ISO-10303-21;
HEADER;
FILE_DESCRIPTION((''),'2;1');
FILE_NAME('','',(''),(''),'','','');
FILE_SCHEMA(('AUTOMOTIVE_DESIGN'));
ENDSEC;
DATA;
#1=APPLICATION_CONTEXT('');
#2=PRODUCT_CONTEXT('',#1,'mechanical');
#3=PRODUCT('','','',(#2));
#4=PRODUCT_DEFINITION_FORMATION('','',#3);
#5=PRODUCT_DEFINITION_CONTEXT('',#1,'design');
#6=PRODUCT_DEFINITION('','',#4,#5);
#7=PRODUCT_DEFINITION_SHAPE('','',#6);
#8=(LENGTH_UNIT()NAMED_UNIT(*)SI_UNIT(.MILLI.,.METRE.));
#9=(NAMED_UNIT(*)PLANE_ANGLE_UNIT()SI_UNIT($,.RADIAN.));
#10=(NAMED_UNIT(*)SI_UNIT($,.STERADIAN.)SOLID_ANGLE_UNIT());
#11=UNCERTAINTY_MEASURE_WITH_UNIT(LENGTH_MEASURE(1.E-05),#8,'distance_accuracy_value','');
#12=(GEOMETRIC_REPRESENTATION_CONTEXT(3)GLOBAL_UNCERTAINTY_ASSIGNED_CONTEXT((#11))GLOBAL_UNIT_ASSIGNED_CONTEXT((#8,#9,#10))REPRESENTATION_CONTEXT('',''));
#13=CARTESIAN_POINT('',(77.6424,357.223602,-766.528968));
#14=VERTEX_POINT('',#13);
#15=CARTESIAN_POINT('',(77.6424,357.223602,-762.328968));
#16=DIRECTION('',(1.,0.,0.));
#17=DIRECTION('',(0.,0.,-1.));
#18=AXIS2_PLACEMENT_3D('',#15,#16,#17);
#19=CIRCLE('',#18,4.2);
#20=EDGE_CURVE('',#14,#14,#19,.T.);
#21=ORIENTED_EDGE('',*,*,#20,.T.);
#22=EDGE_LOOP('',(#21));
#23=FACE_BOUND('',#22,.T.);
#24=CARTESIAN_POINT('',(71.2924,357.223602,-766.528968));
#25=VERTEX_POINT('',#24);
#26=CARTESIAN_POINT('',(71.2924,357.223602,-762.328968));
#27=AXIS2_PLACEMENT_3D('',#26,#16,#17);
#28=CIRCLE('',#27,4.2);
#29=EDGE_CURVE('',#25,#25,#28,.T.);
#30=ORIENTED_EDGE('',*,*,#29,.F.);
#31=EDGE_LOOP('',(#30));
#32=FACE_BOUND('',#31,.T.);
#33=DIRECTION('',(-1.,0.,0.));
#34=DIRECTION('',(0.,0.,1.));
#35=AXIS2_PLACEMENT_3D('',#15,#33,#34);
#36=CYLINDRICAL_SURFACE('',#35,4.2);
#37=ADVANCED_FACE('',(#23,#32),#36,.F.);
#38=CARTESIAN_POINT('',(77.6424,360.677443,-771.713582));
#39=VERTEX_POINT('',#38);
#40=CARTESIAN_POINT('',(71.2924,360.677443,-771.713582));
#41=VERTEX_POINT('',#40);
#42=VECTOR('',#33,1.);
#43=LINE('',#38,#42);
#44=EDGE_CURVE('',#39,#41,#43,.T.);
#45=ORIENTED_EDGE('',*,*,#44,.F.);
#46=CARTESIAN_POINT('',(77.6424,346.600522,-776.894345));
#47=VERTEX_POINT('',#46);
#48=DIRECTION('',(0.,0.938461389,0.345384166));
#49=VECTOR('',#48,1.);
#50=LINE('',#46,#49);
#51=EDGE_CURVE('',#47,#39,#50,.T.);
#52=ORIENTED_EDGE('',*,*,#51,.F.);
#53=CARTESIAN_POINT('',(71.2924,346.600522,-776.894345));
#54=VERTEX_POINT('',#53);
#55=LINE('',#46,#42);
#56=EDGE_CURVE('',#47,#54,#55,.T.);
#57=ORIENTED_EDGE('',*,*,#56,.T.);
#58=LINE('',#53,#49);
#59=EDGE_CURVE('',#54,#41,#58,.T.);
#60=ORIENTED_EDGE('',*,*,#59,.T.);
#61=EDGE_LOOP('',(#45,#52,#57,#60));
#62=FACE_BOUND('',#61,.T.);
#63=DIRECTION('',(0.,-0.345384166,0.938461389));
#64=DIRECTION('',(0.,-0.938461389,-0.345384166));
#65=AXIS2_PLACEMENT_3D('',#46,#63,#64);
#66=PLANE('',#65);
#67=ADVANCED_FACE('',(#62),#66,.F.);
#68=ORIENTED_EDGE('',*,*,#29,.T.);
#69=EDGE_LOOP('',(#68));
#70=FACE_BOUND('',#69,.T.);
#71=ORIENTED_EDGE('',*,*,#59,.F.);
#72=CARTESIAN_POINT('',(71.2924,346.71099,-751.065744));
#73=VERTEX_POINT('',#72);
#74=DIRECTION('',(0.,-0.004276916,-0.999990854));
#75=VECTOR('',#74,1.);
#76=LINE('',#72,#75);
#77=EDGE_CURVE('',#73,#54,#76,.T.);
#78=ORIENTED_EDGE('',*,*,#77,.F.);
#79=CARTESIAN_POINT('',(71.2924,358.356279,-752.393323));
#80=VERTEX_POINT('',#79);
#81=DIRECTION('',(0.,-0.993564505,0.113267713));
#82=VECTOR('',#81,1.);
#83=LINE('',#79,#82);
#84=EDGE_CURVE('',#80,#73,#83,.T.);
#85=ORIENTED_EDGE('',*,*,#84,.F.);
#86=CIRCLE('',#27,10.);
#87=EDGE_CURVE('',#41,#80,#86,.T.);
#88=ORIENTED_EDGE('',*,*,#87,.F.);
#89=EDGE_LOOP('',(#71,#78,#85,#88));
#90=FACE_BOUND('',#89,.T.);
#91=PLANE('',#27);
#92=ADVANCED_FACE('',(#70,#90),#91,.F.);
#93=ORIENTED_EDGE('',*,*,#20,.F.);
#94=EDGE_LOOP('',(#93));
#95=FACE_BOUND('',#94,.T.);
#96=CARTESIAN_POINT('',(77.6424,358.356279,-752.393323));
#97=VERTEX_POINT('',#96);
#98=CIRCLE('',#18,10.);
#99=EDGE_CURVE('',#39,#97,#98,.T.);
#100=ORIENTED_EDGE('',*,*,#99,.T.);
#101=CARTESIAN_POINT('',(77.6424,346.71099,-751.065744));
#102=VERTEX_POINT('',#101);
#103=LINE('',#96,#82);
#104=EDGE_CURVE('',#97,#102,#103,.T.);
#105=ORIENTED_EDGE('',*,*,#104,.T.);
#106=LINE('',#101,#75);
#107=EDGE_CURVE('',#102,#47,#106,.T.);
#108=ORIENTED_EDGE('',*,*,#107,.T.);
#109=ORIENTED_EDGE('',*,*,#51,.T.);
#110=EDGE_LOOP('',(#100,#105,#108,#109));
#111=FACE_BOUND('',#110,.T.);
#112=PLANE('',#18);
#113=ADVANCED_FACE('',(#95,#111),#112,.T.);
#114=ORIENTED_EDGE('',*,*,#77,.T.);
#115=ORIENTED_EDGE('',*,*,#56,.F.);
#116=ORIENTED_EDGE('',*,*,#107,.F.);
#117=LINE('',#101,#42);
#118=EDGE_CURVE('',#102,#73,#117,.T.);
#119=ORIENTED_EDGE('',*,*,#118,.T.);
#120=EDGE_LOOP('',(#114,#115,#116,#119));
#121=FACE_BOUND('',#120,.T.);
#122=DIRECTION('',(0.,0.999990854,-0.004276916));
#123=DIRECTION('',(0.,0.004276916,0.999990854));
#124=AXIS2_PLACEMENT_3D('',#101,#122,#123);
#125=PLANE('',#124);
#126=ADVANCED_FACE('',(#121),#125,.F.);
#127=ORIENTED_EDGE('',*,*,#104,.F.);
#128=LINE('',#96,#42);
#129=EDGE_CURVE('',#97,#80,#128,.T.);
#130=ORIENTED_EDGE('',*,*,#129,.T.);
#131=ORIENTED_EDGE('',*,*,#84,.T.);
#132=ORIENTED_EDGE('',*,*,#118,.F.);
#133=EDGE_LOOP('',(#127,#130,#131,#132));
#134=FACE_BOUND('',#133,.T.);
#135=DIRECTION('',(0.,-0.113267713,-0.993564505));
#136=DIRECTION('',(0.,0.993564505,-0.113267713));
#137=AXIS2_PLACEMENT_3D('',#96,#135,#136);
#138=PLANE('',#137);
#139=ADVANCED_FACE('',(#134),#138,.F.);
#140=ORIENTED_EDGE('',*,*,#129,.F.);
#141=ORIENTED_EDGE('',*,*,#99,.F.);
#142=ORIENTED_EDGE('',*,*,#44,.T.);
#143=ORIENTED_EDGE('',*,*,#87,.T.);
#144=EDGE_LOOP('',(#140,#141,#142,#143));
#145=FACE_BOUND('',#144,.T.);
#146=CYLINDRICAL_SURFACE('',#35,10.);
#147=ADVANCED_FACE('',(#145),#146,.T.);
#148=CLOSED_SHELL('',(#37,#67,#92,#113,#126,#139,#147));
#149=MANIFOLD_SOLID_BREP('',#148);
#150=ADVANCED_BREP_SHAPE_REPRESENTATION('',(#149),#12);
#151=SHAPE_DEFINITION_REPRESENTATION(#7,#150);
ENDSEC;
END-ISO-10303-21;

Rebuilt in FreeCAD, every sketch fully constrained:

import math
import FreeCAD as App
import Part
import Sketcher

V = App.Vector
Q = App.Units.Quantity

doc = App.newDocument("Part")
params = doc.addObject("Spreadsheet::Sheet", "Params")
for row, (alias, value) in enumerate([
    ("sketch1_radius", "10 mm"),
    ("sketch1_diameter", "8.4 mm"),
    ("sketch1_length", "15 mm"),
    ("pad1_length", "6.35 mm"),
], start=1):
    params.set(f"A{row}", alias)
    params.set(f"B{row}", "=" + value)
    params.setAlias(f"B{row}", alias)

body = doc.addObject("PartDesign::Body", "Body")

# Sketch on YZ plane
sketch1 = body.newObject("Sketcher::SketchObject", "Sketch")
sketch1.AttachmentSupport = (doc.getObject("YZ_Plane"), [""])
sketch1.MapMode = "FlatFace"
sketch1.AttachmentOffset = App.Placement(V(0, 0, 71.2924), App.Rotation())
sketch1.addGeometry([
    Part.LineSegment(V(358.4, -752.4, 0), V(346.7, -751.1, 0)),  # 0
    Part.LineSegment(V(346.7, -751.1, 0), V(346.6, -776.9, 0)),  # 1
    Part.LineSegment(V(346.6, -776.9, 0), V(360.7, -771.7, 0)),  # 2
    Part.ArcOfCircle(Part.Circle(V(357.2, -762.3, 0), V(0, 0, 1), 10), math.radians(-70), math.radians(83)),  # 3
    Part.Circle(V(357.2, -762.3, 0), V(0, 0, 1), 4.2),  # 4
], False)
sketch1.addConstraint([
    Sketcher.Constraint("Coincident", 0, 2, 1, 1),
    Sketcher.Constraint("Coincident", 1, 2, 2, 1),
    Sketcher.Constraint("Tangent", 2, 2, 3, 1),
    Sketcher.Constraint("Tangent", 3, 2, 0, 1),
    Sketcher.Constraint("Coincident", 4, 3, 3, 3),
    Sketcher.Constraint("Radius", 3, Q("10 mm")),
    Sketcher.Constraint("Diameter", 4, Q("8.4 mm")),
    Sketcher.Constraint("Distance", 2, Q("15 mm")),
    Sketcher.Constraint("DistanceX", -1, 1, 3, 3, Q("357.223602 mm")),
    Sketcher.Constraint("DistanceY", 1, 2, 0, 2, Q("25.8286 mm")),
    Sketcher.Constraint("DistanceY", 3, 3, -1, 1, Q("762.328968 mm")),
    Sketcher.Constraint("DistanceX", -1, 1, 0, 2, Q("346.71099 mm")),
    Sketcher.Constraint("DistanceX", -1, 1, 3, 2, Q("358.356279 mm")),
])
sketch1.setExpression("Constraints[5]", "Params.sketch1_radius")
sketch1.setExpression("Constraints[6]", "Params.sketch1_diameter")
sketch1.setExpression("Constraints[7]", "Params.sketch1_length")
pad1 = body.newObject("PartDesign::Pad", "Pad")
pad1.Profile = sketch1
pad1.setExpression("Length", "Params.pad1_length")

doc.recompute()
